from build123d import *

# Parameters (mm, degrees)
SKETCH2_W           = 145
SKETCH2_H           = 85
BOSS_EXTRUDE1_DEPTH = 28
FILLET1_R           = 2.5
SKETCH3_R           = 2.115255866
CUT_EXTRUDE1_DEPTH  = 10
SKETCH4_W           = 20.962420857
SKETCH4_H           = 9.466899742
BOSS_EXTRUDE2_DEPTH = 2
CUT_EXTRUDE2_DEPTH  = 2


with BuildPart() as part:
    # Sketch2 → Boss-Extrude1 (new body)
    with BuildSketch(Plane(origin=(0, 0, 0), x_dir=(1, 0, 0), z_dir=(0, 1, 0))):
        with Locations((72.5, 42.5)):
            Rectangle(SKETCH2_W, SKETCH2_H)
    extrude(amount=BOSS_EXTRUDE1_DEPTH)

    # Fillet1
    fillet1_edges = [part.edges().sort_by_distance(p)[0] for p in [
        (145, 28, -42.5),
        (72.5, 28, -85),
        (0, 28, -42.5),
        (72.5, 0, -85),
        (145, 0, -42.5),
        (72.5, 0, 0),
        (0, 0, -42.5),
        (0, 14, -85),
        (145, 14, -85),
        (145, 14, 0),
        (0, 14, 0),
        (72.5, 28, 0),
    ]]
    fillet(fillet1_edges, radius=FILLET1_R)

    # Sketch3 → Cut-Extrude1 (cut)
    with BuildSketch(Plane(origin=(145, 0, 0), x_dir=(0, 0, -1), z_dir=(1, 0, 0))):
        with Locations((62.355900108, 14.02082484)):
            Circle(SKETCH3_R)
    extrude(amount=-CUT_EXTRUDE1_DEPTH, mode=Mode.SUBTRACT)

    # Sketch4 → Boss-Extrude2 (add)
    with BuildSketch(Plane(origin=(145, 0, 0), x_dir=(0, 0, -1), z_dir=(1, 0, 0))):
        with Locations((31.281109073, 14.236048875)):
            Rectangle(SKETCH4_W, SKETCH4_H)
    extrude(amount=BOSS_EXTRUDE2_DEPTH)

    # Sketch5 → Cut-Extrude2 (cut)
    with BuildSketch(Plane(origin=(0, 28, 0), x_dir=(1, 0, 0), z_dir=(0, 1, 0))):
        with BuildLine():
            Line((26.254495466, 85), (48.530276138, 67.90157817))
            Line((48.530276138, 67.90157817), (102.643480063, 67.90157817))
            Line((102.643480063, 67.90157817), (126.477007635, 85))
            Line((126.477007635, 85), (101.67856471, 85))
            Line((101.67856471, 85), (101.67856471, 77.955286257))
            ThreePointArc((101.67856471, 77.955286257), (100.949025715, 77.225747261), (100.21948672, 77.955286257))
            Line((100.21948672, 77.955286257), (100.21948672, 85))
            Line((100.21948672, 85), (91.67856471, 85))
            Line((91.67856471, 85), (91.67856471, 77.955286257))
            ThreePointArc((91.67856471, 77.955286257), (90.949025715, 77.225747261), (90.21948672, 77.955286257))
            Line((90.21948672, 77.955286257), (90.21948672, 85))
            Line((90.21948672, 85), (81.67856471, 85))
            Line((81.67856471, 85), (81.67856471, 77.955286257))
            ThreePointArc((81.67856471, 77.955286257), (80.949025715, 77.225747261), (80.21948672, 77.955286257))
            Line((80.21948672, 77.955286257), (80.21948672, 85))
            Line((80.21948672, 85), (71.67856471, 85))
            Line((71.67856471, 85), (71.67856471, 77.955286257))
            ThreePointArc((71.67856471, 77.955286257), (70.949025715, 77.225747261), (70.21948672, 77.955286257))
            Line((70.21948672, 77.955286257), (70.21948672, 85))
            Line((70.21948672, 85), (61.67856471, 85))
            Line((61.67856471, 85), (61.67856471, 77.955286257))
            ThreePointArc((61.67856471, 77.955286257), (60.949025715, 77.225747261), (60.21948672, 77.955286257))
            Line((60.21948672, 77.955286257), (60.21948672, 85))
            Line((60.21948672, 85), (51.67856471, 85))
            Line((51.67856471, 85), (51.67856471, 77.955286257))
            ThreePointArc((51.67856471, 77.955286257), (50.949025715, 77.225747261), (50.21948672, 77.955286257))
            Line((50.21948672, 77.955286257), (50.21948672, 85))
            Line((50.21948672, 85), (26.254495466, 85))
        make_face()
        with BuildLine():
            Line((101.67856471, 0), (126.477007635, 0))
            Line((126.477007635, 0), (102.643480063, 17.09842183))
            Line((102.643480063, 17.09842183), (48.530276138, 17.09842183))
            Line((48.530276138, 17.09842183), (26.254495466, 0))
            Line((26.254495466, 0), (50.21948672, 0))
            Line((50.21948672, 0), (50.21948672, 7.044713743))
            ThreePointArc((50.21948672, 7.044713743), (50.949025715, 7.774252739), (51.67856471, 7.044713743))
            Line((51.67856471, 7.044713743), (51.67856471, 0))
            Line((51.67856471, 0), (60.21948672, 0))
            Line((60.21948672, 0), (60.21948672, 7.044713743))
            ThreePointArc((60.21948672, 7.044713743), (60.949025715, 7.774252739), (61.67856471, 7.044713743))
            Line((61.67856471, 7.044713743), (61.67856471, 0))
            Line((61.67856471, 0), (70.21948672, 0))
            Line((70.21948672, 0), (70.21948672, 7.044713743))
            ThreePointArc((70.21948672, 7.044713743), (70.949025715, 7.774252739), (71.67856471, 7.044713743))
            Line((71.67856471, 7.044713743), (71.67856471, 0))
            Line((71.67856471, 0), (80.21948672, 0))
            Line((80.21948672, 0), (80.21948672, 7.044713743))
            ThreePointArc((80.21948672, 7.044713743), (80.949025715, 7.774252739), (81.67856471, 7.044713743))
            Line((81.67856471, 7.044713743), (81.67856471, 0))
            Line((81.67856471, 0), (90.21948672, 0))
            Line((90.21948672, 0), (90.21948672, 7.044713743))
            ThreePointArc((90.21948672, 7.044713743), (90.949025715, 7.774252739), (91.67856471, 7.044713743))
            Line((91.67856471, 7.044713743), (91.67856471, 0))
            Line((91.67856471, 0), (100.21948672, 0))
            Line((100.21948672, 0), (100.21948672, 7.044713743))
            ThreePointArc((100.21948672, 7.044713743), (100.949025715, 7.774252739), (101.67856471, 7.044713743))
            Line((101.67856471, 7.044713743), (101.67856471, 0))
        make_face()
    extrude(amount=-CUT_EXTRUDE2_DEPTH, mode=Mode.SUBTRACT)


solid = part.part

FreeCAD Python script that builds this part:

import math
import FreeCAD as App
import Part
import Sketcher

doc = App.newDocument("Part")
params = doc.addObject("Spreadsheet::Sheet", "Params")
for row, (alias, value) in enumerate([
    ("sketch1_width", "145 mm"),
    ("sketch1_height", "85 mm"),
    ("pad1_length", "28 mm"),
    ("fillet_radius", "2.5 mm"),
    ("pocket1_length", "10 mm"),
    ("pad2_length", "2 mm"),
    ("pocket2_length", "2 mm"),
], start=1):
    params.set(f"A{row}", alias)
    params.set(f"B{row}", "=" + value)
    params.setAlias(f"B{row}", alias)

body = doc.addObject("PartDesign::Body", "Body")

sketch1 = body.newObject("Sketcher::SketchObject", "Sketch")
sketch1.AttachmentSupport = (doc.getObject("XZ_Plane"), [""])
sketch1.MapMode = "FlatFace"
sketch1.addGeometry(Part.LineSegment(App.Vector(0, -85, 0), App.Vector(0, 0, 0)), False)
sketch1.addGeometry(Part.LineSegment(App.Vector(0, 0, 0), App.Vector(145, 0, 0)), False)
sketch1.addGeometry(Part.LineSegment(App.Vector(145, 0, 0), App.Vector(145, -85, 0)), False)
sketch1.addGeometry(Part.LineSegment(App.Vector(145, -85, 0), App.Vector(0, -85, 0)), False)
sketch1.addConstraint(Sketcher.Constraint("Coincident", 0, 2, 1, 1))
sketch1.addConstraint(Sketcher.Constraint("Coincident", 1, 2, 2, 1))
sketch1.addConstraint(Sketcher.Constraint("Coincident", 2, 2, 3, 1))
sketch1.addConstraint(Sketcher.Constraint("Coincident", 3, 2, 0, 1))
sketch1.addConstraint(Sketcher.Constraint("Vertical", 0))
sketch1.addConstraint(Sketcher.Constraint("Horizontal", 1))
sketch1.addConstraint(Sketcher.Constraint("Vertical", 2))
sketch1.addConstraint(Sketcher.Constraint("Horizontal", 3))
sketch1.addConstraint(Sketcher.Constraint("Coincident", 0, 2, -1, 1))
sketch1.addConstraint(Sketcher.Constraint("DistanceX", 1, 1, 1, 2, 145.0))
sketch1.addConstraint(Sketcher.Constraint("DistanceY", 0, 1, 0, 2, 85.0))
sketch1.setExpression("Constraints[9]", "Params.sketch1_width")
sketch1.setExpression("Constraints[10]", "Params.sketch1_height")
pad1 = body.newObject("PartDesign::Pad", "Pad")
pad1.Profile = sketch1
pad1.setExpression("Length", "Params.pad1_length")
pad1.Reversed = True
doc.recompute()

fillet = body.newObject("PartDesign::Fillet", "Fillet")
fillet.Base = (pad1, ["Edge1"])
fillet.UseAllEdges = True
fillet.setExpression("Radius", "Params.fillet_radius")

sketch2 = body.newObject("Sketcher::SketchObject", "Sketch001")
sketch2.AttachmentSupport = (doc.getObject("YZ_Plane"), [""])
sketch2.MapMode = "FlatFace"
sketch2.AttachmentOffset = App.Placement(App.Vector(0, 0, 145), App.Rotation())
sketch2.addGeometry(Part.Circle(App.Vector(14.020825, -62.3559, 0), App.Vector(0, 0, 1), 2.115256), False)
sketch2.addConstraint(Sketcher.Constraint("Diameter", 0, 4.230512))
sketch2.addConstraint(Sketcher.Constraint("DistanceY", 0, 3, -1, 1, 62.3559))
sketch2.addConstraint(Sketcher.Constraint("DistanceX", -1, 1, 0, 3, 14.020825))
pocket1 = body.newObject("PartDesign::Pocket", "Pocket")
pocket1.Profile = sketch2
pocket1.setExpression("Length", "Params.pocket1_length")

sketch3 = body.newObject("Sketcher::SketchObject", "Sketch002")
sketch3.AttachmentSupport = (doc.getObject("YZ_Plane"), [""])
sketch3.MapMode = "FlatFace"
sketch3.AttachmentOffset = App.Placement(App.Vector(0, 0, 145), App.Rotation())
sketch3.addGeometry(Part.LineSegment(App.Vector(18.969499, -20.799899, 0), App.Vector(9.502599, -20.799899, 0)), False)
sketch3.addGeometry(Part.LineSegment(App.Vector(9.502599, -20.799899, 0), App.Vector(9.502599, -41.76232, 0)), False)
sketch3.addGeometry(Part.LineSegment(App.Vector(9.502599, -41.76232, 0), App.Vector(18.969499, -41.76232, 0)), False)
sketch3.addGeometry(Part.LineSegment(App.Vector(18.969499, -41.76232, 0), App.Vector(18.969499, -20.799899, 0)), False)
sketch3.addConstraint(Sketcher.Constraint("Coincident", 0, 2, 1, 1))
sketch3.addConstraint(Sketcher.Constraint("Coincident", 1, 2, 2, 1))
sketch3.addConstraint(Sketcher.Constraint("Coincident", 2, 2, 3, 1))
sketch3.addConstraint(Sketcher.Constraint("Coincident", 3, 2, 0, 1))
sketch3.addConstraint(Sketcher.Constraint("Horizontal", 0))
sketch3.addConstraint(Sketcher.Constraint("Vertical", 1))
sketch3.addConstraint(Sketcher.Constraint("Horizontal", 2))
sketch3.addConstraint(Sketcher.Constraint("Vertical", 3))
sketch3.addConstraint(Sketcher.Constraint("DistanceX", 0, 2, 0, 1, 9.4669))
sketch3.addConstraint(Sketcher.Constraint("DistanceY", 1, 2, 1, 1, 20.962421))
sketch3.addConstraint(Sketcher.Constraint("DistanceX", -1, 1, 0, 2, 9.502599))
sketch3.addConstraint(Sketcher.Constraint("DistanceY", 0, 2, -1, 1, 20.799899))
pad2 = body.newObject("PartDesign::Pad", "Pad001")
pad2.Profile = sketch3
pad2.setExpression("Length", "Params.pad2_length")

sketch4 = body.newObject("Sketcher::SketchObject", "Sketch003")
sketch4.AttachmentSupport = (doc.getObject("XZ_Plane"), [""])
sketch4.MapMode = "FlatFace"
sketch4.AttachmentOffset = App.Placement(App.Vector(0, 0, -28), App.Rotation())
sketch4.addGeometry(Part.LineSegment(App.Vector(26.254495, -85, 0), App.Vector(48.530276, -67.901578, 0)), False)
sketch4.addGeometry(Part.LineSegment(App.Vector(48.530276, -67.901578, 0), App.Vector(102.64348, -67.901578, 0)), False)
sketch4.addGeometry(Part.LineSegment(App.Vector(102.64348, -67.901578, 0), App.Vector(126.477008, -85, 0)), False)
sketch4.addGeometry(Part.LineSegment(App.Vector(126.477008, -85, 0), App.Vector(101.678565, -85, 0)), False)
sketch4.addGeometry(Part.LineSegment(App.Vector(101.678565, -85, 0), App.Vector(101.678565, -77.955286, 0)), False)
sketch4.addGeometry(Part.ArcOfCircle(Part.Circle(App.Vector(100.949026, -77.955286, 0), App.Vector(0, 0, 1), 0.729539), math.radians(0), math.radians(180)), False)
sketch4.addGeometry(Part.LineSegment(App.Vector(100.219487, -77.955286, 0), App.Vector(100.219487, -85, 0)), False)
sketch4.addGeometry(Part.LineSegment(App.Vector(100.219487, -85, 0), App.Vector(91.678565, -85, 0)), False)
sketch4.addGeometry(Part.LineSegment(App.Vector(91.678565, -85, 0), App.Vector(91.678565, -77.955286, 0)), False)
sketch4.addGeometry(Part.ArcOfCircle(Part.Circle(App.Vector(90.949026, -77.955286, 0), App.Vector(0, 0, 1), 0.729539), math.radians(0), math.radians(180)), False)
sketch4.addGeometry(Part.LineSegment(App.Vector(90.219487, -77.955286, 0), App.Vector(90.219487, -85, 0)), False)
sketch4.addGeometry(Part.LineSegment(App.Vector(90.219487, -85, 0), App.Vector(81.678565, -85, 0)), False)
sketch4.addGeometry(Part.LineSegment(App.Vector(81.678565, -85, 0), App.Vector(81.678565, -77.955286, 0)), False)
sketch4.addGeometry(Part.ArcOfCircle(Part.Circle(App.Vector(80.949026, -77.955286, 0), App.Vector(0, 0, 1), 0.729539), math.radians(0), math.radians(180)), False)
sketch4.addGeometry(Part.LineSegment(App.Vector(80.219487, -77.955286, 0), App.Vector(80.219487, -85, 0)), False)
sketch4.addGeometry(Part.LineSegment(App.Vector(80.219487, -85, 0), App.Vector(71.678565, -85, 0)), False)
sketch4.addGeometry(Part.LineSegment(App.Vector(71.678565, -85, 0), App.Vector(71.678565, -77.955286, 0)), False)
sketch4.addGeometry(Part.ArcOfCircle(Part.Circle(App.Vector(70.949026, -77.955286, 0), App.Vector(0, 0, 1), 0.729539), math.radians(0), math.radians(180)), False)
sketch4.addGeometry(Part.LineSegment(App.Vector(70.219487, -77.955286, 0), App.Vector(70.219487, -85, 0)), False)
sketch4.addGeometry(Part.LineSegment(App.Vector(70.219487, -85, 0), App.Vector(61.678565, -85, 0)), False)
sketch4.addGeometry(Part.LineSegment(App.Vector(61.678565, -85, 0), App.Vector(61.678565, -77.955286, 0)), False)
sketch4.addGeometry(Part.ArcOfCircle(Part.Circle(App.Vector(60.949026, -77.955286, 0), App.Vector(0, 0, 1), 0.729539), math.radians(0), math.radians(180)), False)
sketch4.addGeometry(Part.LineSegment(App.Vector(60.219487, -77.955286, 0), App.Vector(60.219487, -85, 0)), False)
sketch4.addGeometry(Part.LineSegment(App.Vector(60.219487, -85, 0), App.Vector(51.678565, -85, 0)), False)
sketch4.addGeometry(Part.LineSegment(App.Vector(51.678565, -85, 0), App.Vector(51.678565, -77.955286, 0)), False)
sketch4.addGeometry(Part.ArcOfCircle(Part.Circle(App.Vector(50.949026, -77.955286, 0), App.Vector(0, 0, 1), 0.729539), math.radians(0), math.radians(180)), False)
sketch4.addGeometry(Part.LineSegment(App.Vector(50.219487, -77.955286, 0), App.Vector(50.219487, -85, 0)), False)
sketch4.addGeometry(Part.LineSegment(App.Vector(50.219487, -85, 0), App.Vector(26.254495, -85, 0)), False)
sketch4.addGeometry(Part.LineSegment(App.Vector(101.678565, 0, 0), App.Vector(126.477008, 0, 0)), False)
sketch4.addGeometry(Part.LineSegment(App.Vector(126.477008, 0, 0), App.Vector(102.64348, -17.098422, 0)), False)
sketch4.addGeometry(Part.LineSegment(App.Vector(102.64348, -17.098422, 0), App.Vector(48.530276, -17.098422, 0)), False)
sketch4.addGeometry(Part.LineSegment(App.Vector(48.530276, -17.098422, 0), App.Vector(26.254495, 0, 0)), False)
sketch4.addGeometry(Part.LineSegment(App.Vector(26.254495, 0, 0), App.Vector(50.219487, 0, 0)), False)
sketch4.addGeometry(Part.LineSegment(App.Vector(50.219487, 0, 0), App.Vector(50.219487, -7.044714, 0)), False)
sketch4.addGeometry(Part.ArcOfCircle(Part.Circle(App.Vector(50.949026, -7.044714, 0), App.Vector(0, 0, 1), 0.729539), math.radians(180), math.radians(360)), False)
sketch4.addGeometry(Part.LineSegment(App.Vector(51.678565, -7.044714, 0), App.Vector(51.678565, 0, 0)), False)
sketch4.addGeometry(Part.LineSegment(App.Vector(51.678565, 0, 0), App.Vector(60.219487, 0, 0)), False)
sketch4.addGeometry(Part.LineSegment(App.Vector(60.219487, 0, 0), App.Vector(60.219487, -7.044714, 0)), False)
sketch4.addGeometry(Part.ArcOfCircle(Part.Circle(App.Vector(60.949026, -7.044714, 0), App.Vector(0, 0, 1), 0.729539), math.radians(180), math.radians(360)), False)
sketch4.addGeometry(Part.LineSegment(App.Vector(61.678565, -7.044714, 0), App.Vector(61.678565, 0, 0)), False)
sketch4.addGeometry(Part.LineSegment(App.Vector(61.678565, 0, 0), App.Vector(70.219487, 0, 0)), False)
sketch4.addGeometry(Part.LineSegment(App.Vector(70.219487, 0, 0), App.Vector(70.219487, -7.044714, 0)), False)
sketch4.addGeometry(Part.ArcOfCircle(Part.Circle(App.Vector(70.949026, -7.044714, 0), App.Vector(0, 0, 1), 0.729539), math.radians(180), math.radians(360)), False)
sketch4.addGeometry(Part.LineSegment(App.Vector(71.678565, -7.044714, 0), App.Vector(71.678565, 0, 0)), False)
sketch4.addGeometry(Part.LineSegment(App.Vector(71.678565, 0, 0), App.Vector(80.219487, 0, 0)), False)
sketch4.addGeometry(Part.LineSegment(App.Vector(80.219487, 0, 0), App.Vector(80.219487, -7.044714, 0)), False)
sketch4.addGeometry(Part.ArcOfCircle(Part.Circle(App.Vector(80.949026, -7.044714, 0), App.Vector(0, 0, 1), 0.729539), math.radians(180), math.radians(360)), False)
sketch4.addGeometry(Part.LineSegment(App.Vector(81.678565, -7.044714, 0), App.Vector(81.678565, 0, 0)), False)
sketch4.addGeometry(Part.LineSegment(App.Vector(81.678565, 0, 0), App.Vector(90.219487, 0, 0)), False)
sketch4.addGeometry(Part.LineSegment(App.Vector(90.219487, 0, 0), App.Vector(90.219487, -7.044714, 0)), False)
sketch4.addGeometry(Part.ArcOfCircle(Part.Circle(App.Vector(90.949026, -7.044714, 0), App.Vector(0, 0, 1), 0.729539), math.radians(180), math.radians(360)), False)
sketch4.addGeometry(Part.LineSegment(App.Vector(91.678565, -7.044714, 0), App.Vector(91.678565, 0, 0)), False)
sketch4.addGeometry(Part.LineSegment(App.Vector(91.678565, 0, 0), App.Vector(100.219487, 0, 0)), False)
sketch4.addGeometry(Part.LineSegment(App.Vector(100.219487, 0, 0), App.Vector(100.219487, -7.044714, 0)), False)
sketch4.addGeometry(Part.ArcOfCircle(Part.Circle(App.Vector(100.949026, -7.044714, 0), App.Vector(0, 0, 1), 0.729539), math.radians(180), math.radians(360)), False)
sketch4.addGeometry(Part.LineSegment(App.Vector(101.678565, -7.044714, 0), App.Vector(101.678565, 0, 0)), False)
sketch4.addConstraint(Sketcher.Constraint("Coincident", 0, 2, 1, 1))
sketch4.addConstraint(Sketcher.Constraint("Coincident", 1, 2, 2, 1))
sketch4.addConstraint(Sketcher.Constraint("Coincident", 2, 2, 3, 1))
sketch4.addConstraint(Sketcher.Constraint("Coincident", 3, 2, 4, 1))
sketch4.addConstraint(Sketcher.Constraint("Tangent", 4, 2, 5, 1))
sketch4.addConstraint(Sketcher.Constraint("Tangent", 5, 2, 6, 1))
sketch4.addConstraint(Sketcher.Constraint("Coincident", 6, 2, 7, 1))
sketch4.addConstraint(Sketcher.Constraint("Coincident", 7, 2, 8, 1))
sketch4.addConstraint(Sketcher.Constraint("Tangent", 8, 2, 9, 1))
sketch4.addConstraint(Sketcher.Constraint("Tangent", 9, 2, 10, 1))
sketch4.addConstraint(Sketcher.Constraint("Coincident", 10, 2, 11, 1))
sketch4.addConstraint(Sketcher.Constraint("Coincident", 11, 2, 12, 1))
sketch4.addConstraint(Sketcher.Constraint("Tangent", 12, 2, 13, 1))
sketch4.addConstraint(Sketcher.Constraint("Tangent", 13, 2, 14, 1))
sketch4.addConstraint(Sketcher.Constraint("Coincident", 14, 2, 15, 1))
sketch4.addConstraint(Sketcher.Constraint("Coincident", 15, 2, 16, 1))
sketch4.addConstraint(Sketcher.Constraint("Tangent", 16, 2, 17, 1))
sketch4.addConstraint(Sketcher.Constraint("Tangent", 17, 2, 18, 1))
sketch4.addConstraint(Sketcher.Constraint("Coincident", 18, 2, 19, 1))
sketch4.addConstraint(Sketcher.Constraint("Coincident", 19, 2, 20, 1))
sketch4.addConstraint(Sketcher.Constraint("Tangent", 20, 2, 21, 1))
sketch4.addConstraint(Sketcher.Constraint("Tangent", 21, 2, 22, 1))
sketch4.addConstraint(Sketcher.Constraint("Coincident", 22, 2, 23, 1))
sketch4.addConstraint(Sketcher.Constraint("Coincident", 23, 2, 24, 1))
sketch4.addConstraint(Sketcher.Constraint("Tangent", 24, 2, 25, 1))
sketch4.addConstraint(Sketcher.Constraint("Tangent", 25, 2, 26, 1))
sketch4.addConstraint(Sketcher.Constraint("Coincident", 26, 2, 27, 1))
sketch4.addConstraint(Sketcher.Constraint("Coincident", 27, 2, 0, 1))
sketch4.addConstraint(Sketcher.Constraint("Coincident", 28, 2, 29, 1))
sketch4.addConstraint(Sketcher.Constraint("Coincident", 29, 2, 30, 1))
sketch4.addConstraint(Sketcher.Constraint("Coincident", 30, 2, 31, 1))
sketch4.addConstraint(Sketcher.Constraint("Coincident", 31, 2, 32, 1))
sketch4.addConstraint(Sketcher.Constraint("Coincident", 32, 2, 33, 1))
sketch4.addConstraint(Sketcher.Constraint("Tangent", 33, 2, 34, 1))
sketch4.addConstraint(Sketcher.Constraint("Tangent", 34, 2, 35, 1))
sketch4.addConstraint(Sketcher.Constraint("Coincident", 35, 2, 36, 1))
sketch4.addConstraint(Sketcher.Constraint("Coincident", 36, 2, 37, 1))
sketch4.addConstraint(Sketcher.Constraint("Tangent", 37, 2, 38, 1))
sketch4.addConstraint(Sketcher.Constraint("Tangent", 38, 2, 39, 1))
sketch4.addConstraint(Sketcher.Constraint("Coincident", 39, 2, 40, 1))
sketch4.addConstraint(Sketcher.Constraint("Coincident", 40, 2, 41, 1))
sketch4.addConstraint(Sketcher.Constraint("Tangent", 41, 2, 42, 1))
sketch4.addConstraint(Sketcher.Constraint("Tangent", 42, 2, 43, 1))
sketch4.addConstraint(Sketcher.Constraint("Coincident", 43, 2, 44, 1))
sketch4.addConstraint(Sketcher.Constraint("Coincident", 44, 2, 45, 1))
sketch4.addConstraint(Sketcher.Constraint("Tangent", 45, 2, 46, 1))
sketch4.addConstraint(Sketcher.Constraint("Tangent", 46, 2, 47, 1))
sketch4.addConstraint(Sketcher.Constraint("Coincident", 47, 2, 48, 1))
sketch4.addConstraint(Sketcher.Constraint("Coincident", 48, 2, 49, 1))
sketch4.addConstraint(Sketcher.Constraint("Tangent", 49, 2, 50, 1))
sketch4.addConstraint(Sketcher.Constraint("Tangent", 50, 2, 51, 1))
sketch4.addConstraint(Sketcher.Constraint("Coincident", 51, 2, 52, 1))
sketch4.addConstraint(Sketcher.Constraint("Coincident", 52, 2, 53, 1))
sketch4.addConstraint(Sketcher.Constraint("Tangent", 53, 2, 54, 1))
sketch4.addConstraint(Sketcher.Constraint("Tangent", 54, 2, 55, 1))
sketch4.addConstraint(Sketcher.Constraint("Coincident", 55, 2, 28, 1))
sketch4.addConstraint(Sketcher.Constraint("Horizontal", 1))
sketch4.addConstraint(Sketcher.Constraint("Horizontal", 3))
sketch4.addConstraint(Sketcher.Constraint("Vertical", 4))
sketch4.addConstraint(Sketcher.Constraint("Vertical", 6))
sketch4.addConstraint(Sketcher.Constraint("Horizontal", 7))
sketch4.addConstraint(Sketcher.Constraint("Vertical", 8))
sketch4.addConstraint(Sketcher.Constraint("Vertical", 10))
sketch4.addConstraint(Sketcher.Constraint("Horizontal", 11))
sketch4.addConstraint(Sketcher.Constraint("Vertical", 12))
sketch4.addConstraint(Sketcher.Constraint("Vertical", 14))
sketch4.addConstraint(Sketcher.Constraint("Horizontal", 15))
sketch4.addConstraint(Sketcher.Constraint("Vertical", 16))
sketch4.addConstraint(Sketcher.Constraint("Vertical", 18))
sketch4.addConstraint(Sketcher.Constraint("Horizontal", 19))
sketch4.addConstraint(Sketcher.Constraint("Vertical", 20))
sketch4.addConstraint(Sketcher.Constraint("Vertical", 22))
sketch4.addConstraint(Sketcher.Constraint("Horizontal", 23))
sketch4.addConstraint(Sketcher.Constraint("Vertical", 24))
sketch4.addConstraint(Sketcher.Constraint("Vertical", 26))
sketch4.addConstraint(Sketcher.Constraint("Horizontal", 27))
sketch4.addConstraint(Sketcher.Constraint("Horizontal", 28))
sketch4.addConstraint(Sketcher.Constraint("Horizontal", 30))
sketch4.addConstraint(Sketcher.Constraint("Horizontal", 32))
sketch4.addConstraint(Sketcher.Constraint("Vertical", 33))
sketch4.addConstraint(Sketcher.Constraint("Vertical", 35))
sketch4.addConstraint(Sketcher.Constraint("Horizontal", 36))
sketch4.addConstraint(Sketcher.Constraint("Vertical", 37))
sketch4.addConstraint(Sketcher.Constraint("Vertical", 39))
sketch4.addConstraint(Sketcher.Constraint("Horizontal", 40))
sketch4.addConstraint(Sketcher.Constraint("Vertical", 41))
sketch4.addConstraint(Sketcher.Constraint("Vertical", 43))
sketch4.addConstraint(Sketcher.Constraint("Horizontal", 44))
sketch4.addConstraint(Sketcher.Constraint("Vertical", 45))
sketch4.addConstraint(Sketcher.Constraint("Vertical", 47))
sketch4.addConstraint(Sketcher.Constraint("Horizontal", 48))
sketch4.addConstraint(Sketcher.Constraint("Vertical", 49))
sketch4.addConstraint(Sketcher.Constraint("Vertical", 51))
sketch4.addConstraint(Sketcher.Constraint("Horizontal", 52))
sketch4.addConstraint(Sketcher.Constraint("Vertical", 53))
sketch4.addConstraint(Sketcher.Constraint("Vertical", 55))
sketch4.addConstraint(Sketcher.Constraint("Equal", 5, 9))
sketch4.addConstraint(Sketcher.Constraint("Equal", 9, 13))
sketch4.addConstraint(Sketcher.Constraint("Equal", 13, 17))
sketch4.addConstraint(Sketcher.Constraint("Equal", 17, 21))
sketch4.addConstraint(Sketcher.Constraint("Equal", 21, 25))
sketch4.addConstraint(Sketcher.Constraint("Equal", 25, 34))
sketch4.addConstraint(Sketcher.Constraint("Equal", 34, 38))
sketch4.addConstraint(Sketcher.Constraint("Equal", 38, 42))
sketch4.addConstraint(Sketcher.Constraint("Equal", 42, 46))
sketch4.addConstraint(Sketcher.Constraint("Equal", 46, 50))
sketch4.addConstraint(Sketcher.Constraint("Equal", 50, 54))
sketch4.addConstraint(Sketcher.Constraint("PointOnObject", 28, 2, -1))
sketch4.addConstraint(Sketcher.Constraint("PointOnObject", 31, 2, -1))
sketch4.addConstraint(Sketcher.Constraint("PointOnObject", 35, 2, -1))
sketch4.addConstraint(Sketcher.Constraint("PointOnObject", 39, 2, -1))
sketch4.addConstraint(Sketcher.Constraint("PointOnObject", 43, 2, -1))
sketch4.addConstraint(Sketcher.Constraint("PointOnObject", 47, 2, -1))
sketch4.addConstraint(Sketcher.Constraint("PointOnObject", 51, 2, -1))
sketch4.addConstraint(Sketcher.Constraint("Horizontal", 5, 3, 9, 3))
sketch4.addConstraint(Sketcher.Constraint("Horizontal", 9, 3, 13, 3))
sketch4.addConstraint(Sketcher.Constraint("Horizontal", 13, 3, 17, 3))
sketch4.addConstraint(Sketcher.Constraint("Horizontal", 17, 3, 21, 3))
sketch4.addConstraint(Sketcher.Constraint("Horizontal", 21, 3, 25, 3))
sketch4.addConstraint(Sketcher.Constraint("Horizontal", 34, 3, 38, 3))
sketch4.addConstraint(Sketcher.Constraint("Horizontal", 38, 3, 42, 3))
sketch4.addConstraint(Sketcher.Constraint("Horizontal", 42, 3, 46, 3))
sketch4.addConstraint(Sketcher.Constraint("Horizontal", 46, 3, 50, 3))
sketch4.addConstraint(Sketcher.Constraint("Horizontal", 50, 3, 54, 3))
sketch4.addConstraint(Sketcher.Constraint("Horizontal", 3, 2, 6, 2))
sketch4.addConstraint(Sketcher.Constraint("Horizontal", 7, 2, 10, 2))
sketch4.addConstraint(Sketcher.Constraint("Horizontal", 11, 2, 14, 2))
sketch4.addConstraint(Sketcher.Constraint("Horizontal", 15, 2, 18, 2))
sketch4.addConstraint(Sketcher.Constraint("Horizontal", 19, 2, 22, 2))
sketch4.addConstraint(Sketcher.Constraint("Horizontal", 23, 2, 26, 2))
sketch4.addConstraint(Sketcher.Constraint("Vertical", 25, 3, 34, 3))
sketch4.addConstraint(Sketcher.Constraint("Vertical", 21, 3, 38, 3))
sketch4.addConstraint(Sketcher.Constraint("Vertical", 17, 3, 42, 3))
sketch4.addConstraint(Sketcher.Constraint("Vertical", 13, 3, 46, 3))
sketch4.addConstraint(Sketcher.Constraint("Vertical", 9, 3, 50, 3))
sketch4.addConstraint(Sketcher.Constraint("Vertical", 5, 3, 54, 3))
sketch4.addConstraint(Sketcher.Constraint("Vertical", 2, 2, 28, 2))
sketch4.addConstraint(Sketcher.Constraint("Vertical", 1, 2, 29, 2))
sketch4.addConstraint(Sketcher.Constraint("Vertical", 0, 2, 30, 2))
sketch4.addConstraint(Sketcher.Constraint("Vertical", 27, 2, 31, 2))
sketch4.addConstraint(Sketcher.Constraint("Equal", 7, 11))
sketch4.addConstraint(Sketcher.Constraint("Equal", 11, 15))
sketch4.addConstraint(Sketcher.Constraint("Equal", 15, 19))
sketch4.addConstraint(Sketcher.Constraint("Equal", 19, 23))
sketch4.addConstraint(Sketcher.Constraint("Equal", 26, 33))
sketch4.addConstraint(Sketcher.Constraint("Equal", 2, 29))
sketch4.addConstraint(Sketcher.Constraint("DistanceY", 2, 2, -1, 1, 85.0))
sketch4.addConstraint(Sketcher.Constraint("Radius", 5, 0.729539))
sketch4.addConstraint(Sketcher.Constraint("DistanceX", 27, 2, 27, 1, 23.964991))
sketch4.addConstraint(Sketcher.Constraint("DistanceX", 1, 1, 1, 2, 54.113204))
sketch4.addConstraint(Sketcher.Constraint("DistanceX", 3, 2, 3, 1, 24.798443))
sketch4.addConstraint(Sketcher.Constraint("DistanceX", 7, 2, 7, 1, 8.540922))
sketch4.addConstraint(Sketcher.Constraint("DistanceY", 4, 1, 4, 2, 7.044714))
sketch4.addConstraint(Sketcher.Constraint("DistanceY", 0, 2, -1, 1, 67.901578))
sketch4.addConstraint(Sketcher.Constraint("DistanceX", -1, 1, 1, 2, 102.64348))
sketch4.addConstraint(Sketcher.Constraint("Distance", 0, 28.081425))
pocket2 = body.newObject("PartDesign::Pocket", "Pocket001")
pocket2.Profile = sketch4
pocket2.setExpression("Length", "Params.pocket2_length")
pocket2.Reversed = True

doc.recompute()
